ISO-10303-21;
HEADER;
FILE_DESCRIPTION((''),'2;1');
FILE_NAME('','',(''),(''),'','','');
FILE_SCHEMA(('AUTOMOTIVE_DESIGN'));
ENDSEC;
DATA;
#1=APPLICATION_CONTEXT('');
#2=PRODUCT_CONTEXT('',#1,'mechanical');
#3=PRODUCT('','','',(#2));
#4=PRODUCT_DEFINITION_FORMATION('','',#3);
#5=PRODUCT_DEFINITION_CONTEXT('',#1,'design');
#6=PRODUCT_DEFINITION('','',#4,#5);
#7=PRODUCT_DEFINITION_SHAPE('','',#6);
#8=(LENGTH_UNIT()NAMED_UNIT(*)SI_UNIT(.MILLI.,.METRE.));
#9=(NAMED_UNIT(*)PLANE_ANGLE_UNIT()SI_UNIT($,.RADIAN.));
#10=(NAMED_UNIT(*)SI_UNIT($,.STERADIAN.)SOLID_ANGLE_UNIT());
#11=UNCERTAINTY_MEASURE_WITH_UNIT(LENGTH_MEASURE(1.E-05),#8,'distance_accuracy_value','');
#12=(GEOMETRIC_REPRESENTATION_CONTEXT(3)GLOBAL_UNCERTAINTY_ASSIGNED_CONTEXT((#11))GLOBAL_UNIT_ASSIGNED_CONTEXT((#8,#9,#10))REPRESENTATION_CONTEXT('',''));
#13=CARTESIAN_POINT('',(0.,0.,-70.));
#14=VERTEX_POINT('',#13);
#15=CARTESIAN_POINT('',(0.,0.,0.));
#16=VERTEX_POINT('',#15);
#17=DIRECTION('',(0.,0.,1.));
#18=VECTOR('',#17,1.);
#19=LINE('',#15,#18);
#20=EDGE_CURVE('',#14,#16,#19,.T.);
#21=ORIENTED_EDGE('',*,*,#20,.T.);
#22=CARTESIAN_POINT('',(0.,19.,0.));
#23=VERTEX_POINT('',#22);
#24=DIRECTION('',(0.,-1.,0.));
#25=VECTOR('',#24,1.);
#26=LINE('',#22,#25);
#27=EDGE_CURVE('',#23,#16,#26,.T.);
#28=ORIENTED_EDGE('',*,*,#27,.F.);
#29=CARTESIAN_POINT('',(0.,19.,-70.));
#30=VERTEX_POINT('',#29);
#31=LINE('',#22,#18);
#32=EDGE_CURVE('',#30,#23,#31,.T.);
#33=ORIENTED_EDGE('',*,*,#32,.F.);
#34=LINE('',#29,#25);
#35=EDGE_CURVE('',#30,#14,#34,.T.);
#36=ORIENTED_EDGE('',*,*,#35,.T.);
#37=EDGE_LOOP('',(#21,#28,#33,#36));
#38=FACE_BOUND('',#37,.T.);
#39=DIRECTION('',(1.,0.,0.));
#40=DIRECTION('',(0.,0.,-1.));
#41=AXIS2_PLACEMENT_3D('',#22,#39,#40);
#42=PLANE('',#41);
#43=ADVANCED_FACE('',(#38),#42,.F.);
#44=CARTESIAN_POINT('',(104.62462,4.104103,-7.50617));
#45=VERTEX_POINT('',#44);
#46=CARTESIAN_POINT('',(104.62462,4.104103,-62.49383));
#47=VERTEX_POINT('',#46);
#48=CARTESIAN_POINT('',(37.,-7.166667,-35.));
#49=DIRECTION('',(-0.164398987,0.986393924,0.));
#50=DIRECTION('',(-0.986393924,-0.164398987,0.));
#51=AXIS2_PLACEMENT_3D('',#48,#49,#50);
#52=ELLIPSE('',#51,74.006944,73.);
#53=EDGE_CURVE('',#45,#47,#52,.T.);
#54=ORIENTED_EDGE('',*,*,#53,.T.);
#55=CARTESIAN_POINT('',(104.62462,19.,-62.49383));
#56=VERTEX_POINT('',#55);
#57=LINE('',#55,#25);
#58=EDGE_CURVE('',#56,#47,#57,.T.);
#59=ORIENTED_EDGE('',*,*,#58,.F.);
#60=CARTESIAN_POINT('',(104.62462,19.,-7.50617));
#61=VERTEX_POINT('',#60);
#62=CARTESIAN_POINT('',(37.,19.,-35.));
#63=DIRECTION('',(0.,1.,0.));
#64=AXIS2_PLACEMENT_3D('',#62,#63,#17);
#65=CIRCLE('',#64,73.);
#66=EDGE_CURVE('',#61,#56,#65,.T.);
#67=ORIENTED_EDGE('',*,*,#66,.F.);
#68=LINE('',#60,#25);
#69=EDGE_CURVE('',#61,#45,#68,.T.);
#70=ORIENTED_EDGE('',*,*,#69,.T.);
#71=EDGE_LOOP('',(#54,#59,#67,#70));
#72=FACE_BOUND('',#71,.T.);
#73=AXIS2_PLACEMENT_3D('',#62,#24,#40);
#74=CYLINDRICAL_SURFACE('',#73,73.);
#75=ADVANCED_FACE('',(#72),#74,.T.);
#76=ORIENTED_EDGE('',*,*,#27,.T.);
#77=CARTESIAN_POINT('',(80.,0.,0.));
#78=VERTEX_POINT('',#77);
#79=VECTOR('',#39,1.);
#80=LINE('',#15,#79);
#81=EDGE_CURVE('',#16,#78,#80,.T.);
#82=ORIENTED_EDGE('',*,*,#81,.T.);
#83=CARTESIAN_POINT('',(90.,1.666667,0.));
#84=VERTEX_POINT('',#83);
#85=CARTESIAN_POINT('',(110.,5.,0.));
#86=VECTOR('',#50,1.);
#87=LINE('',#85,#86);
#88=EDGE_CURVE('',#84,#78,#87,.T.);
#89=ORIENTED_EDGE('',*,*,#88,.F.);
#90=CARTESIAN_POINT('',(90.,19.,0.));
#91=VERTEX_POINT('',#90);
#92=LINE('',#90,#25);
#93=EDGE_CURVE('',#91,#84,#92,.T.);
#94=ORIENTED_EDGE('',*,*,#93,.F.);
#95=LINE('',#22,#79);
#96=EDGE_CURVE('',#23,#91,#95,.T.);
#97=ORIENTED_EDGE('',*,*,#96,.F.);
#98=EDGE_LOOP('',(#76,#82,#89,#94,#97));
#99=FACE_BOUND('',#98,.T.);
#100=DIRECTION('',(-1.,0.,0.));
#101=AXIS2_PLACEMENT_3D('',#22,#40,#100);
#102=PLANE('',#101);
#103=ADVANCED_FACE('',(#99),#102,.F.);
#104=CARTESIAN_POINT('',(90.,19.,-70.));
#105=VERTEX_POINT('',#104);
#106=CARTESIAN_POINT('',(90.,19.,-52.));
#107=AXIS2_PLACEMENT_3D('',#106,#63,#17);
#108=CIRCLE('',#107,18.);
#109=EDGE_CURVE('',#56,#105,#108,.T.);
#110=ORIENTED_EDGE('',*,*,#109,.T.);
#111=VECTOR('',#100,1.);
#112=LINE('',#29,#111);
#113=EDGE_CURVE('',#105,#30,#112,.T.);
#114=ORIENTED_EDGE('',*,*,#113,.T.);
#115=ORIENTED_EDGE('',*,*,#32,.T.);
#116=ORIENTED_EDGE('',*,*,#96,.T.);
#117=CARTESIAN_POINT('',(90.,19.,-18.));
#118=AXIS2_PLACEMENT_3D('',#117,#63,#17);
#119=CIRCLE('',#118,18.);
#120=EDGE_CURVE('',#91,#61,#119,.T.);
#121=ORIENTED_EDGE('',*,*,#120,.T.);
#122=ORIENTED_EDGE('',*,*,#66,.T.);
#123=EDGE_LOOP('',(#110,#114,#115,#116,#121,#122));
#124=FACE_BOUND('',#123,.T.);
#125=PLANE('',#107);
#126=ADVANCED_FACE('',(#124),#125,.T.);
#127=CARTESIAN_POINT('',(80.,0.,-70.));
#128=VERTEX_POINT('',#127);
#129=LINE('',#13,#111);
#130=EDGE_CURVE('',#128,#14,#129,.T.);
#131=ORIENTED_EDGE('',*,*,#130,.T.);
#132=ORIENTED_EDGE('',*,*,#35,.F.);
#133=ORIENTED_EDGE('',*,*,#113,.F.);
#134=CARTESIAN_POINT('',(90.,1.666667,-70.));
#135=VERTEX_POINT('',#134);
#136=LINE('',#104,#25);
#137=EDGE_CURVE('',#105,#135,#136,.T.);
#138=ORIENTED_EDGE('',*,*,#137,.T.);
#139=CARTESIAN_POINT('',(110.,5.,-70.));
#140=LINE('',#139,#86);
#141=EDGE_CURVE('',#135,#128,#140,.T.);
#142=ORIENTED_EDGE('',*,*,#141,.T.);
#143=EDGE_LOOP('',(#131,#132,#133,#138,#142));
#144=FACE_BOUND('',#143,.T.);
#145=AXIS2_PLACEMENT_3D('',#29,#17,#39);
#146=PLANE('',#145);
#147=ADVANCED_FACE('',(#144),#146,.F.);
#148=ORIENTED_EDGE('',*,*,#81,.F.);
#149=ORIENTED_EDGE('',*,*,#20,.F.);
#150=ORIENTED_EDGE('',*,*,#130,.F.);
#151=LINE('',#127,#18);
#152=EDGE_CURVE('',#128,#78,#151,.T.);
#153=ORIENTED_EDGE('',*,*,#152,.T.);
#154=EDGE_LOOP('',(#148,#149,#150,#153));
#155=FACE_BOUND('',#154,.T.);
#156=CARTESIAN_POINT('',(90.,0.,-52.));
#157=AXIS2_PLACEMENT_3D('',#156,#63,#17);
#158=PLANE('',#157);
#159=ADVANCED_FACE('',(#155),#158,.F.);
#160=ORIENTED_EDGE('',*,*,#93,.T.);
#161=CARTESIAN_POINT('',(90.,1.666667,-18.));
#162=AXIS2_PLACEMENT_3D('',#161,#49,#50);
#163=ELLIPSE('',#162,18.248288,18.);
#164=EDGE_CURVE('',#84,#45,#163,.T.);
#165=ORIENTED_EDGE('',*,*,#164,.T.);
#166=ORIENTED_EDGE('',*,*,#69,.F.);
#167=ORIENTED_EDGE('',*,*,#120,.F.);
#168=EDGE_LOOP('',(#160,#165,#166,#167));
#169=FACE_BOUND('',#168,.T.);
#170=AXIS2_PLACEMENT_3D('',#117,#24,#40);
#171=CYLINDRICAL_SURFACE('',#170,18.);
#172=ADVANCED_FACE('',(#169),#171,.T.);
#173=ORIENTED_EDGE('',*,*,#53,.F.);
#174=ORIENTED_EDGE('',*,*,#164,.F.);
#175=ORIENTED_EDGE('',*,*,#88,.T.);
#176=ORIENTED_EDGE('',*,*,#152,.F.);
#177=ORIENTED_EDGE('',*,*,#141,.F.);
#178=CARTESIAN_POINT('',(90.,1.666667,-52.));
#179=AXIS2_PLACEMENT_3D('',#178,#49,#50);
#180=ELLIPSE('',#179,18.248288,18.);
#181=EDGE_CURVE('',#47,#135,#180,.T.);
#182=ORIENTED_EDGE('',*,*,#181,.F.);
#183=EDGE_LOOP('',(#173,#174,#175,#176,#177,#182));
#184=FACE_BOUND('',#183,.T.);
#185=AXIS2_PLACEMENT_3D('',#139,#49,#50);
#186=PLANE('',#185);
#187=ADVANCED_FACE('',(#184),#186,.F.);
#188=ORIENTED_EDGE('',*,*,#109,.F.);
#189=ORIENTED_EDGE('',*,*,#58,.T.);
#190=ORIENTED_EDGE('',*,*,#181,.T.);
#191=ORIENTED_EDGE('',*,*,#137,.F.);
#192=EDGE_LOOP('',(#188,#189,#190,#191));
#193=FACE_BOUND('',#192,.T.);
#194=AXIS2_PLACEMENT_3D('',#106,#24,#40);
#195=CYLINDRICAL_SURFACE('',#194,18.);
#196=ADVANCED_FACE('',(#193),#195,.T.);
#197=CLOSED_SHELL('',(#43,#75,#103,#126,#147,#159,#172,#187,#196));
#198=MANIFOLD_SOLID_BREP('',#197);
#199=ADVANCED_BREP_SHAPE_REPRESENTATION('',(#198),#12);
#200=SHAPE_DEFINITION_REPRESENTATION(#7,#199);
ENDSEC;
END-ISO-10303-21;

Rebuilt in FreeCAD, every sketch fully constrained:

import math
import FreeCAD as App
import Part
import Sketcher
Q = App.Units.Quantity


def add_polygon(sketch, points):
    """Adds a closed chain of lines whose ends are joined by coincident constraints."""
    first, n = sketch.GeometryCount, len(points)
    for a, b in zip(points, points[1:] + points[:1]):
        sketch.addGeometry(Part.LineSegment(App.Vector(*a, 0), App.Vector(*b, 0)), False)
    for i in range(n):
        sketch.addConstraint(Sketcher.Constraint("Coincident", first + i, 2, first + (i + 1) % n, 1))

doc = App.newDocument("Part")
body = doc.addObject("PartDesign::Body", "Body")

sketch1 = body.newObject("Sketcher::SketchObject", "Sketch")
sketch1.AttachmentSupport = (doc.getObject("XZ_Plane"), [""])
sketch1.MapMode = "FlatFace"
sketch1.addGeometry([
    Part.LineSegment(App.Vector(0, 0, 0), App.Vector(90, 0, 0)),
    Part.ArcOfCircle(Part.Circle(App.Vector(90, -18, 0), App.Vector(0, 0, 1), 18), math.radians(35.66116), math.radians(90)),
    Part.ArcOfCircle(Part.Circle(App.Vector(37, -35, 0), App.Vector(0, 0, 1), 73), math.radians(-22.124957), math.radians(22.124957)),
    Part.ArcOfCircle(Part.Circle(App.Vector(90, -52, 0), App.Vector(0, 0, 1), 18), math.radians(-90), math.radians(-35.66116)),
    Part.LineSegment(App.Vector(90, -70, 0), App.Vector(0, -70, 0)),
    Part.LineSegment(App.Vector(0, -70, 0), App.Vector(0, 0, 0)),
], False)
sketch1.addConstraint([
    Sketcher.Constraint("Tangent", 0, 2, 1, 2),
    Sketcher.Constraint("Coincident", 1, 1, 2, 2),
    Sketcher.Constraint("Coincident", 2, 1, 3, 2),
    Sketcher.Constraint("Tangent", 3, 1, 4, 1),
    Sketcher.Constraint("Coincident", 4, 2, 5, 1),
    Sketcher.Constraint("Coincident", 5, 2, 0, 1),
    Sketcher.Constraint("Horizontal", 0),
    Sketcher.Constraint("Horizontal", 4),
    Sketcher.Constraint("Vertical", 5),
    Sketcher.Constraint("Coincident", 5, 2, -1, 1),
    Sketcher.Constraint("Equal", 1, 3),
    Sketcher.Constraint("Vertical", 1, 3, 3, 3),
    Sketcher.Constraint("Vertical", 1, 1, 2, 1),
    Sketcher.Constraint("Radius", 1, Q("18 mm")),
    Sketcher.Constraint("Radius", 2, Q("73 mm")),
    Sketcher.Constraint("DistanceX", 0, 1, 0, 2, Q("90 mm")),
    Sketcher.Constraint("DistanceY", 5, 1, 5, 2, Q("70 mm")),
    Sketcher.Constraint("DistanceX", -1, 1, 2, 3, Q("37 mm")),
])
pad1 = body.newObject("PartDesign::Pad", "Pad")
pad1.Profile = sketch1
pad1.Length = 19
pad1.Reversed = True

sketch2 = body.newObject("Sketcher::SketchObject", "Sketch001")
sketch2.AttachmentSupport = (doc.getObject("XY_Plane"), [""])
sketch2.MapMode = "FlatFace"
add_polygon(sketch2, [(110, 5), (80, 0), (110, 0)])
sketch2.addConstraint([
    Sketcher.Constraint("Horizontal", 1),
    Sketcher.Constraint("Vertical", 2),
    Sketcher.Constraint("PointOnObject", 0, 2, -1),
    Sketcher.Constraint("DistanceX", 1, 1, 1, 2, Q("30 mm")),
    Sketcher.Constraint("DistanceY", 2, 1, 2, 2, Q("5 mm")),
    Sketcher.Constraint("DistanceX", -1, 1, 0, 2, Q("80 mm")),
])
pocket1 = body.newObject("PartDesign::Pocket", "Pocket")
pocket1.Profile = sketch2
pocket1.Length = 70

doc.recompute()
